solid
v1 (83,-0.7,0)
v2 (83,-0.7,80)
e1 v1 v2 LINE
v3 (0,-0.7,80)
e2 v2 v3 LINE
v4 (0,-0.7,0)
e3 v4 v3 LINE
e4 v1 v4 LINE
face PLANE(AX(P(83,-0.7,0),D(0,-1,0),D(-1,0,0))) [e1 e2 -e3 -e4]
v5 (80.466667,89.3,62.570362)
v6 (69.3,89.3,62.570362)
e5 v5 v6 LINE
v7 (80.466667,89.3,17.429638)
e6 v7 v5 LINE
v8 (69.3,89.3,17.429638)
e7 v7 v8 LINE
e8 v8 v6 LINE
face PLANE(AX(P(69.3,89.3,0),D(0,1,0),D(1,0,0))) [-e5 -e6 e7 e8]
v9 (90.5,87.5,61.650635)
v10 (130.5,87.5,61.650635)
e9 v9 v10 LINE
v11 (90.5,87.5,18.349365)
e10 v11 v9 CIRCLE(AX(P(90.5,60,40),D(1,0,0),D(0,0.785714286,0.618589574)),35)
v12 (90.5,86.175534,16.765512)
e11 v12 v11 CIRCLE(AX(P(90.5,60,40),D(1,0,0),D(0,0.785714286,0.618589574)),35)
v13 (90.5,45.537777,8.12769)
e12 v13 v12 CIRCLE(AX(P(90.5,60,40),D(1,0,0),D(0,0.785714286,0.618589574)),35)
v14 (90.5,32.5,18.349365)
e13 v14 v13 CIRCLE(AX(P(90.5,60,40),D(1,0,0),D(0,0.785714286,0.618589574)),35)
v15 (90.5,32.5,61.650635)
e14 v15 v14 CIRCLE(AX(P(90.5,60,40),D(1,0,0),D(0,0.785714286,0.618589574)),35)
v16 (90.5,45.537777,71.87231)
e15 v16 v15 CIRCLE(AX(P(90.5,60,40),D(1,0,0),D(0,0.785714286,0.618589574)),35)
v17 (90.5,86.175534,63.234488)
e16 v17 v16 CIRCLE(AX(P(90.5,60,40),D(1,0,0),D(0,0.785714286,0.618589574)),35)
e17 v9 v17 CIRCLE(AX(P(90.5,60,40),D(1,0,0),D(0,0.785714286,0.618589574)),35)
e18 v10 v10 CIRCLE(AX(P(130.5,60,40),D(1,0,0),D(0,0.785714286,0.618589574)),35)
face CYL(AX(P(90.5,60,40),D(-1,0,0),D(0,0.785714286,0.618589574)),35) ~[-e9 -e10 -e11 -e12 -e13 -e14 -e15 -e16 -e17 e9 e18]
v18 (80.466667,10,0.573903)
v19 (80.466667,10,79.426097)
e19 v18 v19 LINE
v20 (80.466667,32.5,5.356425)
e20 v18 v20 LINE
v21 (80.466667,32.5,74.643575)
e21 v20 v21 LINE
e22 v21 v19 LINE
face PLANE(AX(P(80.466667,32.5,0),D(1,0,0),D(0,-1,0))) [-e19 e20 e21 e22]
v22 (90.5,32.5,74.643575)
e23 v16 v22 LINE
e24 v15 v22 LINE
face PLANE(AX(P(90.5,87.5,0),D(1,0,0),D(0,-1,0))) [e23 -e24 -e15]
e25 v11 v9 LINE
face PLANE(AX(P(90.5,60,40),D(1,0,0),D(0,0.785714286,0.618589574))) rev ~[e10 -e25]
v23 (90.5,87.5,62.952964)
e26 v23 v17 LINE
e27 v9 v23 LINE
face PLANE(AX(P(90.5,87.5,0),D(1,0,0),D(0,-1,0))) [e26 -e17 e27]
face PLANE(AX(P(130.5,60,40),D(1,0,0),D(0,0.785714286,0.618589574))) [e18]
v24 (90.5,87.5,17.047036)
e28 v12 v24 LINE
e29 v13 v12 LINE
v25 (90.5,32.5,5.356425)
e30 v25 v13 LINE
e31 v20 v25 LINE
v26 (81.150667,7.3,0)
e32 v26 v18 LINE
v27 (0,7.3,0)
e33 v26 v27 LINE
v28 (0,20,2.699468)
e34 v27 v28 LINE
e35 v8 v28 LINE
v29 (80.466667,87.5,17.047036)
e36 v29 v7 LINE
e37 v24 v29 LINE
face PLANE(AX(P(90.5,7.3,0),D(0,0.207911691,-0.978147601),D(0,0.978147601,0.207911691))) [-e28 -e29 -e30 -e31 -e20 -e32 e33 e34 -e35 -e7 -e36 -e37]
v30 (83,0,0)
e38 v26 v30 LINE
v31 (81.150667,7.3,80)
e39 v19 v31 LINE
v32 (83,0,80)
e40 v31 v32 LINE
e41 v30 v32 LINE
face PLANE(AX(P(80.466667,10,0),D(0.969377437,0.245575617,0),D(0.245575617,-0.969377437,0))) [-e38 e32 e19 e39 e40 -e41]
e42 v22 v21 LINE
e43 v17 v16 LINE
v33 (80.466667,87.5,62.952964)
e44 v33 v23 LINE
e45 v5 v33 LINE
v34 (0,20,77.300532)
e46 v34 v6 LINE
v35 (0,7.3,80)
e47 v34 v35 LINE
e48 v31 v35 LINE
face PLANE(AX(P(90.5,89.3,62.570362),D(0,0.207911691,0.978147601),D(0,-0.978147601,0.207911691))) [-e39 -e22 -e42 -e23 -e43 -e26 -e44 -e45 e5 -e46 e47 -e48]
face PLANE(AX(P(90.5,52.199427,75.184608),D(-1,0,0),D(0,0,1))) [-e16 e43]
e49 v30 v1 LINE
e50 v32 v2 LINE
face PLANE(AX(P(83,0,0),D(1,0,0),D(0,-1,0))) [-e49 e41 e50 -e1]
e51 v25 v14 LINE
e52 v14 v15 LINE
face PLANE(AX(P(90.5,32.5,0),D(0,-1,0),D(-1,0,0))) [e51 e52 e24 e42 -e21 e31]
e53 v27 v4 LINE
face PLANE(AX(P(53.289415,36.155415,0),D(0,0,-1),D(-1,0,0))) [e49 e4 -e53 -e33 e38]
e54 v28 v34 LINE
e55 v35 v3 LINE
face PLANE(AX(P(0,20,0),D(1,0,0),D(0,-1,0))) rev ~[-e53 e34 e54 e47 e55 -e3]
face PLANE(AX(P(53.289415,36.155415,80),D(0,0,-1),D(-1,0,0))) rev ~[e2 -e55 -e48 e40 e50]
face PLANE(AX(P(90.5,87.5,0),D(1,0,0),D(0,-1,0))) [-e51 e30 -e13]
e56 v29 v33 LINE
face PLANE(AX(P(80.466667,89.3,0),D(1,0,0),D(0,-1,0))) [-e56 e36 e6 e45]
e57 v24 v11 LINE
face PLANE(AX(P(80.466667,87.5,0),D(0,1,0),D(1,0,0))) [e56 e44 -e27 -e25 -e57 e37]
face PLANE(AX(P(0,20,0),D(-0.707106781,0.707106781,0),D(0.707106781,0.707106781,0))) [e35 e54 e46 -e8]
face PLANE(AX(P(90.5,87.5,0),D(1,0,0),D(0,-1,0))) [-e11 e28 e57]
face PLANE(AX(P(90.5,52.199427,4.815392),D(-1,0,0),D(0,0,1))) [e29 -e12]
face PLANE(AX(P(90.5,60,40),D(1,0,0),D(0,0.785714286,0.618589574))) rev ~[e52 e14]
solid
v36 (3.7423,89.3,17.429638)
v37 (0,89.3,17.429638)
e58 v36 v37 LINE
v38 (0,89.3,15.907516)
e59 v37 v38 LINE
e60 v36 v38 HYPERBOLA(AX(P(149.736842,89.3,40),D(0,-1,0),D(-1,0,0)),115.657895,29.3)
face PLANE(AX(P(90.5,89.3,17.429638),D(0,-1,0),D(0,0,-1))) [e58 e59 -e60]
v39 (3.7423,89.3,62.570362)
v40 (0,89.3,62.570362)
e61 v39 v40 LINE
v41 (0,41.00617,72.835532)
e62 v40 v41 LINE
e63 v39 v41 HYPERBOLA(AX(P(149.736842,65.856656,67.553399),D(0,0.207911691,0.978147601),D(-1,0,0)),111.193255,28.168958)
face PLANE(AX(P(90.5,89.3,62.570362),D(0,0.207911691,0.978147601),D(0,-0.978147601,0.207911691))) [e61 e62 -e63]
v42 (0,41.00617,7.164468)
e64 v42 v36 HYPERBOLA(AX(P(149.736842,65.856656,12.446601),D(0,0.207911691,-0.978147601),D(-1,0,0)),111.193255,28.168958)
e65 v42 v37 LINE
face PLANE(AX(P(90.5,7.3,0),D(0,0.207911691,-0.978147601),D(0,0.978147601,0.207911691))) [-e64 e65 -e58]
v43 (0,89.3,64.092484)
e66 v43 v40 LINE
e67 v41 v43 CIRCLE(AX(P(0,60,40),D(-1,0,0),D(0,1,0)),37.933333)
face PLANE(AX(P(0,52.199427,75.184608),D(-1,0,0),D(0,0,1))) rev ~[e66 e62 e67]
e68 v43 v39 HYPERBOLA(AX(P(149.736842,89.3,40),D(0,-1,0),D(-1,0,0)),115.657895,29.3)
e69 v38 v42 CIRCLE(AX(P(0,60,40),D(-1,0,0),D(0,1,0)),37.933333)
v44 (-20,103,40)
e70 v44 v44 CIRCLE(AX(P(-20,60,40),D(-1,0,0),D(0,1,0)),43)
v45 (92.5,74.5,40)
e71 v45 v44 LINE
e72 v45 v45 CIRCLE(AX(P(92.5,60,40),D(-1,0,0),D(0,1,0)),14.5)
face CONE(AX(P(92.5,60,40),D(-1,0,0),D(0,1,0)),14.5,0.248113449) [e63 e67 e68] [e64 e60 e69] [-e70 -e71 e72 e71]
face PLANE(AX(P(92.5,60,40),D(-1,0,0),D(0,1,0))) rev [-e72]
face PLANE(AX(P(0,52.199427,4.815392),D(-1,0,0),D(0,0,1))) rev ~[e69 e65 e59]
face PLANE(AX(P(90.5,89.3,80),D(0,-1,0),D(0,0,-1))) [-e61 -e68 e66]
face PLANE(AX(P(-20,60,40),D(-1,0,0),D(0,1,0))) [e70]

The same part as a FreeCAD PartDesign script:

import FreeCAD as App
import Part
import Sketcher

V = App.Vector
Q = App.Units.Quantity


def add_polygon(sketch, points):
    """Adds a closed chain of lines whose ends are joined by coincident constraints."""
    first, n = sketch.GeometryCount, len(points)
    for a, b in zip(points, points[1:] + points[:1]):
        sketch.addGeometry(Part.LineSegment(App.Vector(*a, 0), App.Vector(*b, 0)), False)
    for i in range(n):
        sketch.addConstraint(Sketcher.Constraint("Coincident", first + i, 2, first + (i + 1) % n, 1))

doc = App.newDocument("Part")
body = doc.addObject("PartDesign::Body", "Body")

sketch1 = body.newObject("Sketcher::SketchObject", "Sketch")
sketch1.AttachmentSupport = (doc.getObject("XY_Plane"), [""])
sketch1.MapMode = "FlatFace"
add_polygon(sketch1, [(0, 20), (0, -0.7), (83, -0.7), (83, 0), (80.466667, 10), (80.466667, 32.5), (90.5, 32.5), (90.5, 87.5), (80.466667, 87.5), (80.466667, 89.3), (69.3, 89.3)])
sketch1.addConstraint([
    Sketcher.Constraint("Vertical", 0),
    Sketcher.Constraint("Horizontal", 1),
    Sketcher.Constraint("Vertical", 2),
    Sketcher.Constraint("Vertical", 4),
    Sketcher.Constraint("Horizontal", 5),
    Sketcher.Constraint("Vertical", 6),
    Sketcher.Constraint("Horizontal", 7),
    Sketcher.Constraint("Vertical", 8),
    Sketcher.Constraint("Horizontal", 9),
    Sketcher.Constraint("PointOnObject", 0, 2, -2),
    Sketcher.Constraint("PointOnObject", 2, 2, -1),
    Sketcher.Constraint("Vertical", 4, 2, 7, 2),
    Sketcher.Constraint("DistanceX", 1, 1, 1, 2, 83.0),
    Sketcher.Constraint("DistanceY", 6, 1, 6, 2, 55.0),
    Sketcher.Constraint("Angle", 10, Q("-135 deg")),
    Sketcher.Constraint("DistanceY", 0, 2, 0, 1, 20.7),
    Sketcher.Constraint("DistanceY", 2, 1, 2, 2, 0.7),
    Sketcher.Constraint("DistanceY", 4, 1, 4, 2, 22.5),
    Sketcher.Constraint("DistanceY", 8, 1, 8, 2, 1.8),
    Sketcher.Constraint("DistanceY", -1, 1, 3, 2, 10.0),
    Sketcher.Constraint("DistanceX", -1, 1, 5, 2, 90.5),
    Sketcher.Constraint("Distance", 3, 10.315899),
])
pad1 = body.newObject("PartDesign::Pad", "Pad")
pad1.Profile = sketch1
pad1.Length = 80

sketch2 = body.newObject("Sketcher::SketchObject", "Sketch001")
sketch2.AttachmentSupport = (doc.getObject("YZ_Plane"), [""])
sketch2.MapMode = "FlatFace"
sketch2.AttachmentOffset = App.Placement(V(0, 0, 90.5), App.Rotation())
sketch2.addGeometry(Part.Circle(V(60, 40, 0), V(0, 0, 1), 35), False)
sketch2.addConstraint([
    Sketcher.Constraint("Diameter", 0, 70.0),
    Sketcher.Constraint("DistanceX", -1, 1, 0, 3, 60.0),
    Sketcher.Constraint("DistanceY", -1, 1, 0, 3, 40.0),
])
pad2 = body.newObject("PartDesign::Pad", "Pad001")
pad2.Profile = sketch2
pad2.Length = 40
body2 = doc.addObject("PartDesign::Body", "Body001")

sketch3 = body2.newObject("Sketcher::SketchObject", "Sketch002")
sketch3.AttachmentSupport = (doc.getObject("XY_Plane001"), [""])
sketch3.MapMode = "FlatFace"
sketch3.AttachmentOffset = App.Placement(V(0, 0, 40), App.Rotation())
add_polygon(sketch3, [(92.5, 60), (92.5, 74.5), (-20, 103), (-20, 60)])
sketch3.addGeometry(Part.LineSegment(V(92.5, 60, 0), V(-20, 60, 0)), True)
sketch3.addConstraint([
    Sketcher.Constraint("Vertical", 0),
    Sketcher.Constraint("Vertical", 2),
    Sketcher.Constraint("Horizontal", 3),
    Sketcher.Constraint("Horizontal", 4),
    Sketcher.Constraint("Coincident", 4, 1, 3, 2),
    Sketcher.Constraint("Vertical", 1, 2, 4, 2),
    Sketcher.Constraint("DistanceY", 2, 2, 2, 1, 43.0),
    Sketcher.Constraint("DistanceX", 3, 1, 3, 2, 112.5),
    Sketcher.Constraint("DistanceY", 0, 1, 0, 2, 14.5),
    Sketcher.Constraint("DistanceX", 1, 2, -1, 1, 20.0),
    Sketcher.Constraint("DistanceY", -1, 1, 1, 2, 103.0),
])
revolution = body2.newObject("PartDesign::Revolution", "Revolution")
revolution.Profile = sketch3
revolution.ReferenceAxis = (sketch3, ["Axis0"])
revolution.Angle = 360
body3 = doc.addObject("PartDesign::Body", "Body002")
body3.AllowCompound = True

sketch4 = body3.newObject("Sketcher::SketchObject", "Sketch003")
sketch4.AttachmentSupport = (doc.getObject("YZ_Plane002"), [""])
sketch4.MapMode = "FlatFace"
sketch4.AttachmentOffset = App.Placement(V(0, 0, 90.5), App.Rotation())
add_polygon(sketch4, [(7.3, 0), (89.3, 17.429638), (89.3, 0)])
add_polygon(sketch4, [(89.3, 62.570362), (7.3, 80), (89.3, 80)])
sketch4.addConstraint([
    Sketcher.Constraint("Vertical", 1),
    Sketcher.Constraint("Horizontal", 2),
    Sketcher.Constraint("Horizontal", 4),
    Sketcher.Constraint("Vertical", 5),
    Sketcher.Constraint("PointOnObject", 1, 2, -1),
    Sketcher.Constraint("Vertical", 2, 2, 3, 2),
    Sketcher.Constraint("Vertical", 1, 2, 4, 2),
    Sketcher.Constraint("Equal", 1, 5),
    Sketcher.Constraint("DistanceX", 2, 2, 2, 1, 82.0),
    Sketcher.Constraint("Angle", 0, Q("12 deg")),
    Sketcher.Constraint("DistanceY", -1, 1, 3, 2, 80.0),
    Sketcher.Constraint("DistanceX", -1, 1, 0, 2, 89.3),
])
pad3 = body3.newObject("PartDesign::Pad", "Pad002")
pad3.Profile = sketch4
pad3.Length = 90.5
pad3.Reversed = True
doc.recompute()

body4 = doc.addObject("PartDesign::Body", "Body003")
body4.BaseFeature = body3
boolean = body.newObject("PartDesign::Boolean", "Boolean")
boolean.Type = "Cut"
boolean.addObjects([body4])
doc.recompute()

boolean2 = body2.newObject("PartDesign::Boolean", "Boolean001")
boolean2.Type = "Cut"
boolean2.addObjects([body3])

doc.recompute()
